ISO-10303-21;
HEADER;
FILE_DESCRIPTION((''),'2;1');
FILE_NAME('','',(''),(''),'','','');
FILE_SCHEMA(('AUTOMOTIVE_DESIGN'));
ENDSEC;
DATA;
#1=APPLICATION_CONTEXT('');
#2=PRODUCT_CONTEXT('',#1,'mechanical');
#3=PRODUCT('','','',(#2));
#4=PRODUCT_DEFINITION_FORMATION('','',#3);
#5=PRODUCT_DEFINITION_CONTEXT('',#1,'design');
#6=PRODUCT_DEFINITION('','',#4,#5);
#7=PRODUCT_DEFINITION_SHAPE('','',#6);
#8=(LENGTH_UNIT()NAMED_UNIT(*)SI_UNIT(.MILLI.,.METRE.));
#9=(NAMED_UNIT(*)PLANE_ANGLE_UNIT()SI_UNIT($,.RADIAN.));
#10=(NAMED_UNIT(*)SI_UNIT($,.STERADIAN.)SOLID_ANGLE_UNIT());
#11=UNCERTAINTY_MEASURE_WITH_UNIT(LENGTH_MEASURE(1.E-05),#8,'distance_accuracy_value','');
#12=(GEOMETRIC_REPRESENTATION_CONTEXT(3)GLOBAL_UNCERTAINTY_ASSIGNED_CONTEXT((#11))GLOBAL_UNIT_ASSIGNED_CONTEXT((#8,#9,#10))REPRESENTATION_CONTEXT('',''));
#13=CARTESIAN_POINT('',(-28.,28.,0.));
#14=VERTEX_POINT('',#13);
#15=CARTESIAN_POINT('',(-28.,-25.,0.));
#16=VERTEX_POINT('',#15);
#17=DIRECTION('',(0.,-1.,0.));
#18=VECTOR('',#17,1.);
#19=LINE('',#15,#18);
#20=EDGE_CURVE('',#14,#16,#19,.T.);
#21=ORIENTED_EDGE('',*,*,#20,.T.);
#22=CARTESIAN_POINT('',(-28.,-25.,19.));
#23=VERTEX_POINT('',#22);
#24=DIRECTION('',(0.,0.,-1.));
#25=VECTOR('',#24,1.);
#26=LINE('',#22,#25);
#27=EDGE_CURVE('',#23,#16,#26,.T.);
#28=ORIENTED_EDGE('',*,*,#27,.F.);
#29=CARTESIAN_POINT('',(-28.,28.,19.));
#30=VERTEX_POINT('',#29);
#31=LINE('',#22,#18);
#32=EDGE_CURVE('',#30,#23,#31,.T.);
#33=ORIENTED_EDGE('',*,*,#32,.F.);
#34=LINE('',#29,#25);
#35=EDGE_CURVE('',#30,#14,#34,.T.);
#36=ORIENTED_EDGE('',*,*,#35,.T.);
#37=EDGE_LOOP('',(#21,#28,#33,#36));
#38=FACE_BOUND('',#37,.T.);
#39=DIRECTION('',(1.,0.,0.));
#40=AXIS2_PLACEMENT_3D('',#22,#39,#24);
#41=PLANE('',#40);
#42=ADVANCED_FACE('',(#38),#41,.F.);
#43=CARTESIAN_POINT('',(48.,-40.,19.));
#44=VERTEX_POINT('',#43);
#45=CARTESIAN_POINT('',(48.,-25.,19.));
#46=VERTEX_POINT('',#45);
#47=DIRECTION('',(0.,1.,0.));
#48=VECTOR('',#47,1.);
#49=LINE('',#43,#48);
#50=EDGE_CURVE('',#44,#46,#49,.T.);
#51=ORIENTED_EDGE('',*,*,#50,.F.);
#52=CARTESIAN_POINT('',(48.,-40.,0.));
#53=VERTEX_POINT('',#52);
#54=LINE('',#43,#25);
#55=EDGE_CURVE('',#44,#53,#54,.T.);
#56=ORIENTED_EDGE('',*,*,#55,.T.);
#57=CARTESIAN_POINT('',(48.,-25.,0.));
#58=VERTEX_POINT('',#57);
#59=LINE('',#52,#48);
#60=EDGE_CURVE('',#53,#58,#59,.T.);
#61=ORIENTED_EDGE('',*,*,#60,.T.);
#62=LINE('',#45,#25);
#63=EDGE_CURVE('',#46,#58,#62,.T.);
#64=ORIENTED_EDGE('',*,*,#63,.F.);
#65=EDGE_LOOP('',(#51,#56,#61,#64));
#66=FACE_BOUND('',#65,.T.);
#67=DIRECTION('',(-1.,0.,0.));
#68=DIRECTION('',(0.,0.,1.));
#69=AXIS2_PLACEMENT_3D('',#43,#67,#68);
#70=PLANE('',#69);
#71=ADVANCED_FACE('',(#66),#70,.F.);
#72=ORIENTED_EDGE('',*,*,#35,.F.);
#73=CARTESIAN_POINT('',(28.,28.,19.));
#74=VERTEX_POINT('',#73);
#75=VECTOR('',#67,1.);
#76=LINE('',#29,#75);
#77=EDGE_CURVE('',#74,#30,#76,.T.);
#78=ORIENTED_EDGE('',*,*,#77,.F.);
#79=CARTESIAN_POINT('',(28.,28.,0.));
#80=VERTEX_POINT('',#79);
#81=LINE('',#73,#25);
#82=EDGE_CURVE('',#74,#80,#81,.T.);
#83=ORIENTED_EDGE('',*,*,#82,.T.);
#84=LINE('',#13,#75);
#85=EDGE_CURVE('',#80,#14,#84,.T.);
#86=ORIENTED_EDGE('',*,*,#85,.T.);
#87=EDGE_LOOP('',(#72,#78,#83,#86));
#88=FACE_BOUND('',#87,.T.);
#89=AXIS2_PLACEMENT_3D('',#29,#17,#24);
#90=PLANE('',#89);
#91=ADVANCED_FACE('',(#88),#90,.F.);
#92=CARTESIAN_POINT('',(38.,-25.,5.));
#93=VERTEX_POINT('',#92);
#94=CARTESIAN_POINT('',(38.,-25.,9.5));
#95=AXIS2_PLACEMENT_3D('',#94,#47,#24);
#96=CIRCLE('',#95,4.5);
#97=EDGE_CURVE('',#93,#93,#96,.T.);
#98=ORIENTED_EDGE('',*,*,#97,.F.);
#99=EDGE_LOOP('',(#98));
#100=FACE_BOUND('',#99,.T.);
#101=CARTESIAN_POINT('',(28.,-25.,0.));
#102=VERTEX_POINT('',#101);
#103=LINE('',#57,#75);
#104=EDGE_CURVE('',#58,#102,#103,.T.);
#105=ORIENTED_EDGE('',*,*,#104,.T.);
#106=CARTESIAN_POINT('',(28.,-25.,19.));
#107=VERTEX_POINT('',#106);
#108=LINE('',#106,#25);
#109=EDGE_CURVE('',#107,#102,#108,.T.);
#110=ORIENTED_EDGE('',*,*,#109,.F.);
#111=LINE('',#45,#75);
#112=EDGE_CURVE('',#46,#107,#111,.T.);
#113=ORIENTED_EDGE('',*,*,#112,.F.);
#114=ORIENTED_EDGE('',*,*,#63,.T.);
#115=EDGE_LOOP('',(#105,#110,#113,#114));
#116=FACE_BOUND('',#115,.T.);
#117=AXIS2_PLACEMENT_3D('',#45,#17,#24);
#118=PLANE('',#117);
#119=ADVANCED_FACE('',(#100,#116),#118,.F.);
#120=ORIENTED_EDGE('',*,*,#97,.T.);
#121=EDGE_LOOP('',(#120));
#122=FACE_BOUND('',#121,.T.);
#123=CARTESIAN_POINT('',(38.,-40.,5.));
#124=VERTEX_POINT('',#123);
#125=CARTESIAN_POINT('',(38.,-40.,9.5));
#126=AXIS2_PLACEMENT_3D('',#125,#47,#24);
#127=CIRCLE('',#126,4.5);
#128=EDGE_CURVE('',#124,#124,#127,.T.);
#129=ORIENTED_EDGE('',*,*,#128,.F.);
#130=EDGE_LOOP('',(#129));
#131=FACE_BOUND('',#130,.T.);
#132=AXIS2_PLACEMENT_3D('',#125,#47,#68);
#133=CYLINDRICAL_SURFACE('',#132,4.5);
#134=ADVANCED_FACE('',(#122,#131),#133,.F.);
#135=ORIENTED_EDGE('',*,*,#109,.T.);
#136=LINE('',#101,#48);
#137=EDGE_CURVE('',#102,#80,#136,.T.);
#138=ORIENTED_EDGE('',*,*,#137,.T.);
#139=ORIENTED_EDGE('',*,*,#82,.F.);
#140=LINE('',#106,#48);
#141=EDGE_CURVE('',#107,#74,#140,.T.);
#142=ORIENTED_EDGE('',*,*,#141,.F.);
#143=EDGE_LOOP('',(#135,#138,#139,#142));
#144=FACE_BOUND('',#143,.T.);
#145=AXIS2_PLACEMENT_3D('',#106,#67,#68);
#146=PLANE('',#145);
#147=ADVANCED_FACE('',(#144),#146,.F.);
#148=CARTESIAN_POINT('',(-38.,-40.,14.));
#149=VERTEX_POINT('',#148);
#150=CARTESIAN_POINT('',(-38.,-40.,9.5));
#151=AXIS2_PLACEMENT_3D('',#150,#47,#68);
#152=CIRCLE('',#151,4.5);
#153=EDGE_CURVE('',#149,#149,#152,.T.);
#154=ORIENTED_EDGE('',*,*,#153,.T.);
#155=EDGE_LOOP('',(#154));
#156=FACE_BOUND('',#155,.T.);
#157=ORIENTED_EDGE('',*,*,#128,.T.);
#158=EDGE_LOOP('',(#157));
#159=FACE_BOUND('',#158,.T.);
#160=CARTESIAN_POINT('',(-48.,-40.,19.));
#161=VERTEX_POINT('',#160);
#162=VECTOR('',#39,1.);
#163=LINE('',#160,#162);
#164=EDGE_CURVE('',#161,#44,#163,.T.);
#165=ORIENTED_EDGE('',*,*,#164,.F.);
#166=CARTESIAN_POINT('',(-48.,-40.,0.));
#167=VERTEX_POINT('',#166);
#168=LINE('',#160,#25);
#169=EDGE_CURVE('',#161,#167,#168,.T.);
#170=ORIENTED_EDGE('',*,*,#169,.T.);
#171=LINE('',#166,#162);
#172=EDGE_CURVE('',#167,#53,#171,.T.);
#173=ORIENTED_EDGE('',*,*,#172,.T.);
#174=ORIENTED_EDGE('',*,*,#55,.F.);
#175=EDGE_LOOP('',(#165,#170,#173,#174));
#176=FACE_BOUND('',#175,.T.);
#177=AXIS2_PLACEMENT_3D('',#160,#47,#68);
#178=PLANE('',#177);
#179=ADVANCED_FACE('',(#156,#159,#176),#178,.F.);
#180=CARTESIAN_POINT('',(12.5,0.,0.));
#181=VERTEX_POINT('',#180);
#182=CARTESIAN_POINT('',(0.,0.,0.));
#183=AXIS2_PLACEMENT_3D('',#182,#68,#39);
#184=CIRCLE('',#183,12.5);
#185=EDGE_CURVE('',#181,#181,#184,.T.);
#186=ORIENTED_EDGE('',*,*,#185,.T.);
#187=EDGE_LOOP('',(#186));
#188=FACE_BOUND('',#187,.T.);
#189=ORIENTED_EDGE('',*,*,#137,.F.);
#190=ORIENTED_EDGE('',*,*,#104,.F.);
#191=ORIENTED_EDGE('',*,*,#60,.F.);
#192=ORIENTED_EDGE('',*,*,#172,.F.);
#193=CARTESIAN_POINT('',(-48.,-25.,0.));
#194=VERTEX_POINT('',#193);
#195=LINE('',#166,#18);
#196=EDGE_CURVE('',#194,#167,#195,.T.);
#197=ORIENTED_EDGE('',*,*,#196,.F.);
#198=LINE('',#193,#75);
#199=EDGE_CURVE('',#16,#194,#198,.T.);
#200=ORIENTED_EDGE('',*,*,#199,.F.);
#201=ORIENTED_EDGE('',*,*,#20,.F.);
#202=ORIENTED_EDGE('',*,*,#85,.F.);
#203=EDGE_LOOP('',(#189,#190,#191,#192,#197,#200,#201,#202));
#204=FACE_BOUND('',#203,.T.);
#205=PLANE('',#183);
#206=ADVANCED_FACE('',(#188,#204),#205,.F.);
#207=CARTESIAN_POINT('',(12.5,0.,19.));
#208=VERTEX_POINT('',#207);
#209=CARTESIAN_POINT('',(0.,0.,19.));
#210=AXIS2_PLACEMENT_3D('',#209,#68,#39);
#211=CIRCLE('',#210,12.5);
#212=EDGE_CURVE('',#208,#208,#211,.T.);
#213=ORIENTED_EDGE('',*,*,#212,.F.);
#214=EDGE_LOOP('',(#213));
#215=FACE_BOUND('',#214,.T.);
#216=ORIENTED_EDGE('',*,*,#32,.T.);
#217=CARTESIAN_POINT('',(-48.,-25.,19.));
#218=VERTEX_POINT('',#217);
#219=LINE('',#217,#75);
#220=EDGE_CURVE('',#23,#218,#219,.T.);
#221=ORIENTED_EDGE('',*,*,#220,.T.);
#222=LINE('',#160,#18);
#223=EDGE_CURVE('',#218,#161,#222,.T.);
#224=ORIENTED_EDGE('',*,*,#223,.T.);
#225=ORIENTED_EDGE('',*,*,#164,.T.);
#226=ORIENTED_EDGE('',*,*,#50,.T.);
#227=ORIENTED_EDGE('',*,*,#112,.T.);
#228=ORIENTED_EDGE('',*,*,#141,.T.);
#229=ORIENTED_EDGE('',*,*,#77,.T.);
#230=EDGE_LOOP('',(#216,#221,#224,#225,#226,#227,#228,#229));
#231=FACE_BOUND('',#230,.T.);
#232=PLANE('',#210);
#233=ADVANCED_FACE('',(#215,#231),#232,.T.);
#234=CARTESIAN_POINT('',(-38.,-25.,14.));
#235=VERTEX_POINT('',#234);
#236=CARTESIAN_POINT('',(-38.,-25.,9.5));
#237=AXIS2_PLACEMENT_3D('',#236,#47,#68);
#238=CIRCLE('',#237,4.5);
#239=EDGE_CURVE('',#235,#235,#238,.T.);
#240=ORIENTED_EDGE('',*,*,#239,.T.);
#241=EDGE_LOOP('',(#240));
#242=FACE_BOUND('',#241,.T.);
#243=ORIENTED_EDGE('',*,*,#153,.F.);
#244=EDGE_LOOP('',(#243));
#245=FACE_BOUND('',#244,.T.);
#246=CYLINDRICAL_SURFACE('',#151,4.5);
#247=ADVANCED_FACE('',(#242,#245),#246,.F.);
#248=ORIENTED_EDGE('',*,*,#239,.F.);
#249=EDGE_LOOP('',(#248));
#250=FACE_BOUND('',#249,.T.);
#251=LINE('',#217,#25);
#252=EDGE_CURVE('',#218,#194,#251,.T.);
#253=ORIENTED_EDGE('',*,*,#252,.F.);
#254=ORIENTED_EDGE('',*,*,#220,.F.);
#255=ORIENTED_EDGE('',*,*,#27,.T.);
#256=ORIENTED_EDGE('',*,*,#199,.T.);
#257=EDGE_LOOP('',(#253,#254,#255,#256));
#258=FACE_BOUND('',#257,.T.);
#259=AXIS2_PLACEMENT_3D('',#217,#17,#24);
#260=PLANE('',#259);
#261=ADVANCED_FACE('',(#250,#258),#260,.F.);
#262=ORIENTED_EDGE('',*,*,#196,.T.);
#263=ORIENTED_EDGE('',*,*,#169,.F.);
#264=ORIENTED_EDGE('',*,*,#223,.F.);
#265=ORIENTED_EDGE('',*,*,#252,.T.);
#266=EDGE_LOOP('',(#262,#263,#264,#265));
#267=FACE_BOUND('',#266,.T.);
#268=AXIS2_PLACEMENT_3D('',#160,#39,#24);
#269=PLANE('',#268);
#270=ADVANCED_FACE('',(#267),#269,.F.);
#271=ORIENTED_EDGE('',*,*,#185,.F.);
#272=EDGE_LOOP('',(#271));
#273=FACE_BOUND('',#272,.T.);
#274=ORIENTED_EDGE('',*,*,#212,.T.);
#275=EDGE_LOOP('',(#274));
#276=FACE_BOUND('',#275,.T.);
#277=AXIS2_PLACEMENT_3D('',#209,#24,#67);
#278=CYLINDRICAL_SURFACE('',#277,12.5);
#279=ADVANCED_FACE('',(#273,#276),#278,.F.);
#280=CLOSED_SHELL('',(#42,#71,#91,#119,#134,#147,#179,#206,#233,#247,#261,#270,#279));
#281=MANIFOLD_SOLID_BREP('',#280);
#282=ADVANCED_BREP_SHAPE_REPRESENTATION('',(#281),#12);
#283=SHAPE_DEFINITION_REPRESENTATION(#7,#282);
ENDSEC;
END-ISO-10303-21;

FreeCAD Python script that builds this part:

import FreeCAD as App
import Part
import Sketcher

V = App.Vector

doc = App.newDocument("Part")
body = doc.addObject("PartDesign::Body", "Body")

# Sketch on XY plane
sketch1 = body.newObject("Sketcher::SketchObject", "Sketch")
sketch1.AttachmentSupport = (doc.getObject("XY_Plane"), [""])
sketch1.MapMode = "FlatFace"
sketch1.addGeometry([
    Part.LineSegment(V(-48, -25, 0), V(-48, -40, 0)),  # 0
    Part.LineSegment(V(-48, -40, 0), V(48, -40, 0)),  # 1
    Part.LineSegment(V(48, -40, 0), V(48, -25, 0)),  # 2
    Part.LineSegment(V(48, -25, 0), V(28, -25, 0)),  # 3
    Part.LineSegment(V(28, -25, 0), V(28, 28, 0)),  # 4
    Part.LineSegment(V(28, 28, 0), V(-28, 28, 0)),  # 5
    Part.LineSegment(V(-28, 28, 0), V(-28, -25, 0)),  # 6
    Part.LineSegment(V(-28, -25, 0), V(-48, -25, 0)),  # 7
    Part.Circle(V(0, 0, 0), V(0, 0, 1), 12),  # 8
], False)
sketch1.addConstraint([
    Sketcher.Constraint("Coincident", 0, 2, 1, 1),
    Sketcher.Constraint("Coincident", 1, 2, 2, 1),
    Sketcher.Constraint("Coincident", 2, 2, 3, 1),
    Sketcher.Constraint("Coincident", 3, 2, 4, 1),
    Sketcher.Constraint("Coincident", 4, 2, 5, 1),
    Sketcher.Constraint("Coincident", 5, 2, 6, 1),
    Sketcher.Constraint("Coincident", 6, 2, 7, 1),
    Sketcher.Constraint("Coincident", 7, 2, 0, 1),
    Sketcher.Constraint("Vertical", 0),
    Sketcher.Constraint("Horizontal", 1),
    Sketcher.Constraint("Vertical", 2),
    Sketcher.Constraint("Horizontal", 3),
    Sketcher.Constraint("Vertical", 4),
    Sketcher.Constraint("Horizontal", 5),
    Sketcher.Constraint("Vertical", 6),
    Sketcher.Constraint("Horizontal", 7),
    Sketcher.Constraint("Coincident", 8, 3, -1, 1),
    Sketcher.Constraint("Symmetric", 3, 2, 6, 2, -2),
    Sketcher.Constraint("Equal", 3, 7),
    Sketcher.Constraint("Diameter", 8, 25.0),
    Sketcher.Constraint("DistanceX", 1, 1, 1, 2, 96.0),
    Sketcher.Constraint("DistanceX", 3, 2, 3, 1, 20.0),
    Sketcher.Constraint("DistanceY", 0, 2, 0, 1, 15.0),
    Sketcher.Constraint("DistanceY", 4, 1, 4, 2, 53.0),
    Sketcher.Constraint("DistanceY", 0, 2, -1, 1, 40.0),
])
pad1 = body.newObject("PartDesign::Pad", "Pad")
pad1.Profile = sketch1
pad1.Length = 19

# Sketch on XZ plane
sketch2 = body.newObject("Sketcher::SketchObject", "Sketch001")
sketch2.AttachmentSupport = (doc.getObject("XZ_Plane"), [""])
sketch2.MapMode = "FlatFace"
sketch2.AttachmentOffset = App.Placement(V(0, 0, 25), App.Rotation())
sketch2.addGeometry([
    Part.Circle(V(-38, 9.5, 0), V(0, 0, 1), 4.5),
    Part.Circle(V(38, 9.5, 0), V(0, 0, 1), 4.5),
], False)
sketch2.addConstraint([
    Sketcher.Constraint("Equal", 0, 1),
    Sketcher.Constraint("Symmetric", 0, 3, 1, 3, -2),
    Sketcher.Constraint("Diameter", 0, 9.0),
    Sketcher.Constraint("DistanceX", 0, 3, -1, 1, 38.0),
    Sketcher.Constraint("DistanceY", -1, 1, 0, 3, 9.5),
])
pocket1 = body.newObject("PartDesign::Pocket", "Pocket")
pocket1.Profile = sketch2
pocket1.Type = "ThroughAll"
pocket1.Reversed = True

doc.recompute()
